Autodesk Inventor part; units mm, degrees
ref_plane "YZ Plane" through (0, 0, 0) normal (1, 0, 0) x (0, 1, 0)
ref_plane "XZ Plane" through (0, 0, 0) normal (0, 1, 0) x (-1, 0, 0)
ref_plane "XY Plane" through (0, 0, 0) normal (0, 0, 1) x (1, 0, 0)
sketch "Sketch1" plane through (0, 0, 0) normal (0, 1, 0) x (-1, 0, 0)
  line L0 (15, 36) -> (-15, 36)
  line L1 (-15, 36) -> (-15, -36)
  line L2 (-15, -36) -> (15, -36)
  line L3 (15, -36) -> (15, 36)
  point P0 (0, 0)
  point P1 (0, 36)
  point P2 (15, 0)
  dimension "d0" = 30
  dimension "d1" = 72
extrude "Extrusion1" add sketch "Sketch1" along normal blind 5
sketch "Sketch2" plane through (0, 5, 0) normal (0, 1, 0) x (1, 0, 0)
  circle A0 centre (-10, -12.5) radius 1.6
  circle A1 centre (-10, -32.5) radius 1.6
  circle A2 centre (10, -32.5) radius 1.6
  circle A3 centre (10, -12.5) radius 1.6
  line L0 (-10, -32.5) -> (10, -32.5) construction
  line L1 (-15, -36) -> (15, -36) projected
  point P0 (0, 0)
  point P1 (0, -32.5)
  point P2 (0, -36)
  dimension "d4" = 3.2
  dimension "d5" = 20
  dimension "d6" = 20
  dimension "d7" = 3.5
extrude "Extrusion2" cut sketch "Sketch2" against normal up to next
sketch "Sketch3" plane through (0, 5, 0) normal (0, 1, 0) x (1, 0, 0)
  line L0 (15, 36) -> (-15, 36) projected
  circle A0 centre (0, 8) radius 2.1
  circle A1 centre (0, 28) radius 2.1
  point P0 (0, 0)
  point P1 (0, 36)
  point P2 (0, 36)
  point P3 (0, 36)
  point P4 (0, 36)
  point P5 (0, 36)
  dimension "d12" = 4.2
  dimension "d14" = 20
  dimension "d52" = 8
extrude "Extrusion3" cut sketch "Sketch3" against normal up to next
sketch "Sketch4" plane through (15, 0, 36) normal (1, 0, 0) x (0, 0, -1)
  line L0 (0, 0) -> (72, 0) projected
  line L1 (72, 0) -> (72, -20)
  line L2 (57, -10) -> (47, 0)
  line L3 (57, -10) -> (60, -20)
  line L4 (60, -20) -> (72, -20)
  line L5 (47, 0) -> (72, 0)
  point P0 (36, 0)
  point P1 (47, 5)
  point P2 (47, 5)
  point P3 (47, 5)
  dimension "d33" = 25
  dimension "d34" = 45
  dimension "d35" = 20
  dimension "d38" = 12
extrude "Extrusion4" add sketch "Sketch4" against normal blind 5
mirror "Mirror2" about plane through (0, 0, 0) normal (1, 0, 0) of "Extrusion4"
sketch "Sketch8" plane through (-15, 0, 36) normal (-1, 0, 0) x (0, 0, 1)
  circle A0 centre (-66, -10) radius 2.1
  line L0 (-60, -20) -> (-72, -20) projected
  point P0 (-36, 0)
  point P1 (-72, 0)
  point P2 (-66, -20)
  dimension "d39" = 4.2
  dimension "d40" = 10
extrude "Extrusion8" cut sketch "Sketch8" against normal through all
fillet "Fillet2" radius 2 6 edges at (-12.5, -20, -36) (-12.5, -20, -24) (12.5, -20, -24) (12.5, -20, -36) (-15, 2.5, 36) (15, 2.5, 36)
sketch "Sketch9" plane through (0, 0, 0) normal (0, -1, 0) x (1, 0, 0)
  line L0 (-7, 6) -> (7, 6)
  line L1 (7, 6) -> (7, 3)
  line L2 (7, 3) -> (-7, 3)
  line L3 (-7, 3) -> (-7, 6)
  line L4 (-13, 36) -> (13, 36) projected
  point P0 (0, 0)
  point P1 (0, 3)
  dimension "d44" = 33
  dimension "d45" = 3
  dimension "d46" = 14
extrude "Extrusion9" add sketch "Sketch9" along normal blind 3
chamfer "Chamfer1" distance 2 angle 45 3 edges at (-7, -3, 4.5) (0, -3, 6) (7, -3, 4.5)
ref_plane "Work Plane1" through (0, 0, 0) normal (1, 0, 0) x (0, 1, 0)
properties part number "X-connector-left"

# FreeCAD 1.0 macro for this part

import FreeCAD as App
import Part
import Sketcher

V = App.Vector
Q = App.Units.Quantity


def edges_at(feature, points):
    """Names of the edges that pass closest to the given points."""
    edges = feature.Shape.Edges
    near = lambda p: min(range(len(edges)), key=lambda i: edges[i].distToShape(Part.Vertex(*p))[0])
    return sorted({f"Edge{near(p) + 1}" for p in points})

doc = App.newDocument("Part")
body = doc.addObject("PartDesign::Body", "Body")

# Sketch on XZ plane
sketch1 = body.newObject("Sketcher::SketchObject", "Sketch")
sketch1.AttachmentSupport = (doc.getObject("XZ_Plane"), [""])
sketch1.MapMode = "FlatFace"
sketch1.addGeometry(Part.LineSegment(V(-15, -36, 0), V(-15, 36, 0)), False)
sketch1.addGeometry(Part.LineSegment(V(-15, 36, 0), V(15, 36, 0)), False)
sketch1.addGeometry(Part.LineSegment(V(15, 36, 0), V(15, -36, 0)), False)
sketch1.addGeometry(Part.LineSegment(V(15, -36, 0), V(-15, -36, 0)), False)
sketch1.addConstraint(Sketcher.Constraint("Coincident", 0, 2, 1, 1))
sketch1.addConstraint(Sketcher.Constraint("Coincident", 1, 2, 2, 1))
sketch1.addConstraint(Sketcher.Constraint("Coincident", 2, 2, 3, 1))
sketch1.addConstraint(Sketcher.Constraint("Coincident", 3, 2, 0, 1))
sketch1.addConstraint(Sketcher.Constraint("Vertical", 0))
sketch1.addConstraint(Sketcher.Constraint("Horizontal", 1))
sketch1.addConstraint(Sketcher.Constraint("Vertical", 2))
sketch1.addConstraint(Sketcher.Constraint("Horizontal", 3))
sketch1.addConstraint(Sketcher.Constraint("Symmetric", 0, 2, 2, 2, -1, 1))
sketch1.addConstraint(Sketcher.Constraint("DistanceX", 1, 1, 1, 2, Q("30 mm")))
sketch1.addConstraint(Sketcher.Constraint("DistanceY", 0, 1, 0, 2, Q("72 mm")))
pad1 = body.newObject("PartDesign::Pad", "Pad")
pad1.Profile = sketch1
pad1.Length = 5
pad1.Reversed = True

# Sketch on XZ plane
sketch2 = body.newObject("Sketcher::SketchObject", "Sketch001")
sketch2.AttachmentSupport = (doc.getObject("XZ_Plane"), [""])
sketch2.MapMode = "FlatFace"
sketch2.AttachmentOffset = App.Placement(V(0, 0, -5), App.Rotation())
sketch2.addGeometry(Part.Circle(V(-10, 12.5, 0), V(0, 0, 1), 1.6), False)
sketch2.addGeometry(Part.Circle(V(-10, 32.5, 0), V(0, 0, 1), 1.6), False)
sketch2.addGeometry(Part.Circle(V(10, 32.5, 0), V(0, 0, 1), 1.6), False)
sketch2.addGeometry(Part.Circle(V(10, 12.5, 0), V(0, 0, 1), 1.6), False)
sketch2.addConstraint(Sketcher.Constraint("Equal", 0, 1))
sketch2.addConstraint(Sketcher.Constraint("Equal", 1, 2))
sketch2.addConstraint(Sketcher.Constraint("Equal", 2, 3))
sketch2.addConstraint(Sketcher.Constraint("Symmetric", 1, 3, 2, 3, -2))
sketch2.addConstraint(Sketcher.Constraint("Symmetric", 0, 3, 3, 3, -2))
sketch2.addConstraint(Sketcher.Constraint("Vertical", 0, 3, 1, 3))
sketch2.addConstraint(Sketcher.Constraint("Diameter", 0, Q("3.2 mm")))
sketch2.addConstraint(Sketcher.Constraint("DistanceY", 0, 3, 1, 3, Q("20 mm")))
sketch2.addConstraint(Sketcher.Constraint("DistanceX", 1, 3, 2, 3, Q("20 mm")))
sketch2.addConstraint(Sketcher.Constraint("DistanceY", -1, 1, 0, 3, Q("12.5 mm")))
pocket1 = body.newObject("PartDesign::Pocket", "Pocket")
pocket1.Profile = sketch2
pocket1.Type = "UpToFirst"
pocket1.Reversed = True

# Sketch on XZ plane
sketch3 = body.newObject("Sketcher::SketchObject", "Sketch002")
sketch3.AttachmentSupport = (doc.getObject("XZ_Plane"), [""])
sketch3.MapMode = "FlatFace"
sketch3.AttachmentOffset = App.Placement(V(0, 0, -5), App.Rotation())
sketch3.addGeometry(Part.Circle(V(0, -8, 0), V(0, 0, 1), 2.1), False)
sketch3.addGeometry(Part.Circle(V(0, -28, 0), V(0, 0, 1), 2.1), False)
sketch3.addConstraint(Sketcher.Constraint("Equal", 0, 1))
sketch3.addConstraint(Sketcher.Constraint("PointOnObject", 0, 3, -2))
sketch3.addConstraint(Sketcher.Constraint("PointOnObject", 1, 3, -2))
sketch3.addConstraint(Sketcher.Constraint("Diameter", 0, Q("4.2 mm")))
sketch3.addConstraint(Sketcher.Constraint("DistanceY", 0, 3, -1, 1, Q("8 mm")))
sketch3.addConstraint(Sketcher.Constraint("DistanceY", 1, 3, 0, 3, Q("20 mm")))
pocket2 = body.newObject("PartDesign::Pocket", "Pocket001")
pocket2.Profile = sketch3
pocket2.Type = "UpToFirst"
pocket2.Reversed = True

# Sketch on YZ plane
sketch4 = body.newObject("Sketcher::SketchObject", "Sketch003")
sketch4.AttachmentSupport = (doc.getObject("YZ_Plane"), [""])
sketch4.MapMode = "FlatFace"
sketch4.AttachmentOffset = App.Placement(V(0, 0, 15), App.Rotation())
sketch4.addGeometry(Part.LineSegment(V(0, -36, 0), V(0, -11, 0)), False)
sketch4.addGeometry(Part.LineSegment(V(0, -11, 0), V(-10, -21, 0)), False)
sketch4.addGeometry(Part.LineSegment(V(-10, -21, 0), V(-20, -24, 0)), False)
sketch4.addGeometry(Part.LineSegment(V(-20, -24, 0), V(-20, -36, 0)), False)
sketch4.addGeometry(Part.LineSegment(V(-20, -36, 0), V(0, -36, 0)), False)
sketch4.addConstraint(Sketcher.Constraint("Coincident", 0, 2, 1, 1))
sketch4.addConstraint(Sketcher.Constraint("Coincident", 1, 2, 2, 1))
sketch4.addConstraint(Sketcher.Constraint("Coincident", 2, 2, 3, 1))
sketch4.addConstraint(Sketcher.Constraint("Coincident", 3, 2, 4, 1))
sketch4.addConstraint(Sketcher.Constraint("Coincident", 4, 2, 0, 1))
sketch4.addConstraint(Sketcher.Constraint("Vertical", 0))
sketch4.addConstraint(Sketcher.Constraint("Vertical", 3))
sketch4.addConstraint(Sketcher.Constraint("Horizontal", 4))
sketch4.addConstraint(Sketcher.Constraint("PointOnObject", 0, 2, -2))
sketch4.addConstraint(Sketcher.Constraint("DistanceX", 4, 1, 4, 2, Q("20 mm")))
sketch4.addConstraint(Sketcher.Constraint("DistanceY", 0, 1, 0, 2, Q("25 mm")))
sketch4.addConstraint(Sketcher.Constraint("DistanceY", 3, 2, 3, 1, Q("12 mm")))
sketch4.addConstraint(Sketcher.Constraint("Angle", 1, Q("-135 deg")))
sketch4.addConstraint(Sketcher.Constraint("DistanceY", 0, 2, -1, 1, Q("11 mm")))
sketch4.addConstraint(Sketcher.Constraint("DistanceX", 1, 2, -1, 1, Q("10 mm")))
pad2 = body.newObject("PartDesign::Pad", "Pad001")
pad2.Profile = sketch4
pad2.Length = 5
pad2.Reversed = True
doc.recompute()

mirrored = body.newObject("PartDesign::Mirrored", "Mirrored")
mirrored.Originals = [pad2]
mirrored.MirrorPlane = (doc.getObject("YZ_Plane"), [""])
body.Tip = mirrored

# Sketch on YZ plane
sketch5 = body.newObject("Sketcher::SketchObject", "Sketch004")
sketch5.AttachmentSupport = (doc.getObject("YZ_Plane"), [""])
sketch5.MapMode = "FlatFace"
sketch5.AttachmentOffset = App.Placement(V(0, 0, -15), App.Rotation())
sketch5.addGeometry(Part.Circle(V(-10, -30, 0), V(0, 0, 1), 2.1), False)
sketch5.addConstraint(Sketcher.Constraint("Diameter", 0, Q("4.2 mm")))
sketch5.addConstraint(Sketcher.Constraint("DistanceX", 0, 3, -1, 1, Q("10 mm")))
sketch5.addConstraint(Sketcher.Constraint("DistanceY", 0, 3, -1, 1, Q("30 mm")))
pocket3 = body.newObject("PartDesign::Pocket", "Pocket002")
pocket3.Profile = sketch5
pocket3.Type = "ThroughAll"
pocket3.Reversed = True
doc.recompute()

fillet = body.newObject("PartDesign::Fillet", "Fillet")
fillet.Base = (pocket3, edges_at(pocket3, [
    (-12.5, -20, -36),
    (-12.5, -20, -24),
    (12.5, -20, -24),
    (12.5, -20, -36),
    (-15, 2.5, 36),
    (15, 2.5, 36),
]))
fillet.Radius = 2

# Sketch on XZ plane
sketch6 = body.newObject("Sketcher::SketchObject", "Sketch005")
sketch6.AttachmentSupport = (doc.getObject("XZ_Plane"), [""])
sketch6.MapMode = "FlatFace"
sketch6.addGeometry(Part.LineSegment(V(7, 6, 0), V(-7, 6, 0)), False)
sketch6.addGeometry(Part.LineSegment(V(-7, 6, 0), V(-7, 3, 0)), False)
sketch6.addGeometry(Part.LineSegment(V(-7, 3, 0), V(7, 3, 0)), False)
sketch6.addGeometry(Part.LineSegment(V(7, 3, 0), V(7, 6, 0)), False)
sketch6.addConstraint(Sketcher.Constraint("Coincident", 0, 2, 1, 1))
sketch6.addConstraint(Sketcher.Constraint("Coincident", 1, 2, 2, 1))
sketch6.addConstraint(Sketcher.Constraint("Coincident", 2, 2, 3, 1))
sketch6.addConstraint(Sketcher.Constraint("Coincident", 3, 2, 0, 1))
sketch6.addConstraint(Sketcher.Constraint("Horizontal", 0))
sketch6.addConstraint(Sketcher.Constraint("Vertical", 1))
sketch6.addConstraint(Sketcher.Constraint("Horizontal", 2))
sketch6.addConstraint(Sketcher.Constraint("Vertical", 3))
sketch6.addConstraint(Sketcher.Constraint("DistanceX", 0, 2, 0, 1, Q("14 mm")))
sketch6.addConstraint(Sketcher.Constraint("DistanceY", 1, 2, 1, 1, Q("3 mm")))
sketch6.addConstraint(Sketcher.Constraint("DistanceY", -1, 1, 1, 2, Q("3 mm")))
sketch6.addConstraint(Sketcher.Constraint("DistanceX", 0, 2, -1, 1, Q("7 mm")))
pad3 = body.newObject("PartDesign::Pad", "Pad002")
pad3.Profile = sketch6
pad3.Length = 3
doc.recompute()

chamfer = body.newObject("PartDesign::Chamfer", "Chamfer")
chamfer.Base = (pad3, edges_at(pad3, [(-7, -3, 4.5), (0, -3, 6), (7, -3, 4.5)]))
chamfer.Size = 2

doc.recompute()
